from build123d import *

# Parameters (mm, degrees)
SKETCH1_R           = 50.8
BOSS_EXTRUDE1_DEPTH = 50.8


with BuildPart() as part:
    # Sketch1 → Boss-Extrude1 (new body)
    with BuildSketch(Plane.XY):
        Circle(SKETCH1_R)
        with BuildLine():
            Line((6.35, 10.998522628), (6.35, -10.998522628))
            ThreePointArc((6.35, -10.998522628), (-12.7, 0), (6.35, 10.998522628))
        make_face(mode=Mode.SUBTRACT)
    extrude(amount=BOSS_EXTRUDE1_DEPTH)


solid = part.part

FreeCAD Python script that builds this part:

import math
import FreeCAD as App
import Part
import Sketcher
Q = App.Units.Quantity

doc = App.newDocument("Part")
params = doc.addObject("Spreadsheet::Sheet", "Params")
for row, (alias, value) in enumerate([
    ("sketch1_diameter", "4 in"),
    ("sketch1_radius", "0.5 in"),
    ("pad1_length", "2 in"),
], start=1):
    params.set(f"A{row}", alias)
    params.set(f"B{row}", "=" + value)
    params.setAlias(f"B{row}", alias)

body = doc.addObject("PartDesign::Body", "Body")

sketch1 = doc.addObject("Sketcher::SketchObject", "Sketch")
body.addObject(sketch1)
sketch1.AttachmentSupport = (doc.XY_Plane, [""])
sketch1.MapMode = "FlatFace"
sketch1.addGeometry(Part.Circle(App.Vector(0, 0, 0), App.Vector(0, 0, 1), 51), False)
sketch1.addGeometry(Part.ArcOfCircle(Part.Circle(App.Vector(0, 0, 0), App.Vector(0, 0, 1), 13), math.radians(60), math.radians(300)), False)
sketch1.addGeometry(Part.LineSegment(App.Vector(6, 11, 0), App.Vector(6, -11, 0)), False)
sketch1.addConstraint(Sketcher.Constraint("Coincident", 1, 1, 2, 1))
sketch1.addConstraint(Sketcher.Constraint("Coincident", 2, 2, 1, 2))
sketch1.addConstraint(Sketcher.Constraint("Vertical", 2))
sketch1.addConstraint(Sketcher.Constraint("Coincident", 0, 3, -1, 1))
sketch1.addConstraint(Sketcher.Constraint("Coincident", 1, 3, -1, 1))
sketch1.addConstraint(Sketcher.Constraint("Diameter", 0, Q("4 in")))
sketch1.addConstraint(Sketcher.Constraint("Radius", 1, Q("0.5 in")))
sketch1.addConstraint(Sketcher.Constraint("DistanceX", -1, 1, 1, 1, Q("0.25 in")))
sketch1.setExpression("Constraints[5]", "Params.sketch1_diameter")
sketch1.setExpression("Constraints[6]", "Params.sketch1_radius")
pad1 = doc.addObject("PartDesign::Pad", "Pad")
body.addObject(pad1)
pad1.Profile = sketch1
pad1.setExpression("Length", "Params.pad1_length")

doc.recompute()
